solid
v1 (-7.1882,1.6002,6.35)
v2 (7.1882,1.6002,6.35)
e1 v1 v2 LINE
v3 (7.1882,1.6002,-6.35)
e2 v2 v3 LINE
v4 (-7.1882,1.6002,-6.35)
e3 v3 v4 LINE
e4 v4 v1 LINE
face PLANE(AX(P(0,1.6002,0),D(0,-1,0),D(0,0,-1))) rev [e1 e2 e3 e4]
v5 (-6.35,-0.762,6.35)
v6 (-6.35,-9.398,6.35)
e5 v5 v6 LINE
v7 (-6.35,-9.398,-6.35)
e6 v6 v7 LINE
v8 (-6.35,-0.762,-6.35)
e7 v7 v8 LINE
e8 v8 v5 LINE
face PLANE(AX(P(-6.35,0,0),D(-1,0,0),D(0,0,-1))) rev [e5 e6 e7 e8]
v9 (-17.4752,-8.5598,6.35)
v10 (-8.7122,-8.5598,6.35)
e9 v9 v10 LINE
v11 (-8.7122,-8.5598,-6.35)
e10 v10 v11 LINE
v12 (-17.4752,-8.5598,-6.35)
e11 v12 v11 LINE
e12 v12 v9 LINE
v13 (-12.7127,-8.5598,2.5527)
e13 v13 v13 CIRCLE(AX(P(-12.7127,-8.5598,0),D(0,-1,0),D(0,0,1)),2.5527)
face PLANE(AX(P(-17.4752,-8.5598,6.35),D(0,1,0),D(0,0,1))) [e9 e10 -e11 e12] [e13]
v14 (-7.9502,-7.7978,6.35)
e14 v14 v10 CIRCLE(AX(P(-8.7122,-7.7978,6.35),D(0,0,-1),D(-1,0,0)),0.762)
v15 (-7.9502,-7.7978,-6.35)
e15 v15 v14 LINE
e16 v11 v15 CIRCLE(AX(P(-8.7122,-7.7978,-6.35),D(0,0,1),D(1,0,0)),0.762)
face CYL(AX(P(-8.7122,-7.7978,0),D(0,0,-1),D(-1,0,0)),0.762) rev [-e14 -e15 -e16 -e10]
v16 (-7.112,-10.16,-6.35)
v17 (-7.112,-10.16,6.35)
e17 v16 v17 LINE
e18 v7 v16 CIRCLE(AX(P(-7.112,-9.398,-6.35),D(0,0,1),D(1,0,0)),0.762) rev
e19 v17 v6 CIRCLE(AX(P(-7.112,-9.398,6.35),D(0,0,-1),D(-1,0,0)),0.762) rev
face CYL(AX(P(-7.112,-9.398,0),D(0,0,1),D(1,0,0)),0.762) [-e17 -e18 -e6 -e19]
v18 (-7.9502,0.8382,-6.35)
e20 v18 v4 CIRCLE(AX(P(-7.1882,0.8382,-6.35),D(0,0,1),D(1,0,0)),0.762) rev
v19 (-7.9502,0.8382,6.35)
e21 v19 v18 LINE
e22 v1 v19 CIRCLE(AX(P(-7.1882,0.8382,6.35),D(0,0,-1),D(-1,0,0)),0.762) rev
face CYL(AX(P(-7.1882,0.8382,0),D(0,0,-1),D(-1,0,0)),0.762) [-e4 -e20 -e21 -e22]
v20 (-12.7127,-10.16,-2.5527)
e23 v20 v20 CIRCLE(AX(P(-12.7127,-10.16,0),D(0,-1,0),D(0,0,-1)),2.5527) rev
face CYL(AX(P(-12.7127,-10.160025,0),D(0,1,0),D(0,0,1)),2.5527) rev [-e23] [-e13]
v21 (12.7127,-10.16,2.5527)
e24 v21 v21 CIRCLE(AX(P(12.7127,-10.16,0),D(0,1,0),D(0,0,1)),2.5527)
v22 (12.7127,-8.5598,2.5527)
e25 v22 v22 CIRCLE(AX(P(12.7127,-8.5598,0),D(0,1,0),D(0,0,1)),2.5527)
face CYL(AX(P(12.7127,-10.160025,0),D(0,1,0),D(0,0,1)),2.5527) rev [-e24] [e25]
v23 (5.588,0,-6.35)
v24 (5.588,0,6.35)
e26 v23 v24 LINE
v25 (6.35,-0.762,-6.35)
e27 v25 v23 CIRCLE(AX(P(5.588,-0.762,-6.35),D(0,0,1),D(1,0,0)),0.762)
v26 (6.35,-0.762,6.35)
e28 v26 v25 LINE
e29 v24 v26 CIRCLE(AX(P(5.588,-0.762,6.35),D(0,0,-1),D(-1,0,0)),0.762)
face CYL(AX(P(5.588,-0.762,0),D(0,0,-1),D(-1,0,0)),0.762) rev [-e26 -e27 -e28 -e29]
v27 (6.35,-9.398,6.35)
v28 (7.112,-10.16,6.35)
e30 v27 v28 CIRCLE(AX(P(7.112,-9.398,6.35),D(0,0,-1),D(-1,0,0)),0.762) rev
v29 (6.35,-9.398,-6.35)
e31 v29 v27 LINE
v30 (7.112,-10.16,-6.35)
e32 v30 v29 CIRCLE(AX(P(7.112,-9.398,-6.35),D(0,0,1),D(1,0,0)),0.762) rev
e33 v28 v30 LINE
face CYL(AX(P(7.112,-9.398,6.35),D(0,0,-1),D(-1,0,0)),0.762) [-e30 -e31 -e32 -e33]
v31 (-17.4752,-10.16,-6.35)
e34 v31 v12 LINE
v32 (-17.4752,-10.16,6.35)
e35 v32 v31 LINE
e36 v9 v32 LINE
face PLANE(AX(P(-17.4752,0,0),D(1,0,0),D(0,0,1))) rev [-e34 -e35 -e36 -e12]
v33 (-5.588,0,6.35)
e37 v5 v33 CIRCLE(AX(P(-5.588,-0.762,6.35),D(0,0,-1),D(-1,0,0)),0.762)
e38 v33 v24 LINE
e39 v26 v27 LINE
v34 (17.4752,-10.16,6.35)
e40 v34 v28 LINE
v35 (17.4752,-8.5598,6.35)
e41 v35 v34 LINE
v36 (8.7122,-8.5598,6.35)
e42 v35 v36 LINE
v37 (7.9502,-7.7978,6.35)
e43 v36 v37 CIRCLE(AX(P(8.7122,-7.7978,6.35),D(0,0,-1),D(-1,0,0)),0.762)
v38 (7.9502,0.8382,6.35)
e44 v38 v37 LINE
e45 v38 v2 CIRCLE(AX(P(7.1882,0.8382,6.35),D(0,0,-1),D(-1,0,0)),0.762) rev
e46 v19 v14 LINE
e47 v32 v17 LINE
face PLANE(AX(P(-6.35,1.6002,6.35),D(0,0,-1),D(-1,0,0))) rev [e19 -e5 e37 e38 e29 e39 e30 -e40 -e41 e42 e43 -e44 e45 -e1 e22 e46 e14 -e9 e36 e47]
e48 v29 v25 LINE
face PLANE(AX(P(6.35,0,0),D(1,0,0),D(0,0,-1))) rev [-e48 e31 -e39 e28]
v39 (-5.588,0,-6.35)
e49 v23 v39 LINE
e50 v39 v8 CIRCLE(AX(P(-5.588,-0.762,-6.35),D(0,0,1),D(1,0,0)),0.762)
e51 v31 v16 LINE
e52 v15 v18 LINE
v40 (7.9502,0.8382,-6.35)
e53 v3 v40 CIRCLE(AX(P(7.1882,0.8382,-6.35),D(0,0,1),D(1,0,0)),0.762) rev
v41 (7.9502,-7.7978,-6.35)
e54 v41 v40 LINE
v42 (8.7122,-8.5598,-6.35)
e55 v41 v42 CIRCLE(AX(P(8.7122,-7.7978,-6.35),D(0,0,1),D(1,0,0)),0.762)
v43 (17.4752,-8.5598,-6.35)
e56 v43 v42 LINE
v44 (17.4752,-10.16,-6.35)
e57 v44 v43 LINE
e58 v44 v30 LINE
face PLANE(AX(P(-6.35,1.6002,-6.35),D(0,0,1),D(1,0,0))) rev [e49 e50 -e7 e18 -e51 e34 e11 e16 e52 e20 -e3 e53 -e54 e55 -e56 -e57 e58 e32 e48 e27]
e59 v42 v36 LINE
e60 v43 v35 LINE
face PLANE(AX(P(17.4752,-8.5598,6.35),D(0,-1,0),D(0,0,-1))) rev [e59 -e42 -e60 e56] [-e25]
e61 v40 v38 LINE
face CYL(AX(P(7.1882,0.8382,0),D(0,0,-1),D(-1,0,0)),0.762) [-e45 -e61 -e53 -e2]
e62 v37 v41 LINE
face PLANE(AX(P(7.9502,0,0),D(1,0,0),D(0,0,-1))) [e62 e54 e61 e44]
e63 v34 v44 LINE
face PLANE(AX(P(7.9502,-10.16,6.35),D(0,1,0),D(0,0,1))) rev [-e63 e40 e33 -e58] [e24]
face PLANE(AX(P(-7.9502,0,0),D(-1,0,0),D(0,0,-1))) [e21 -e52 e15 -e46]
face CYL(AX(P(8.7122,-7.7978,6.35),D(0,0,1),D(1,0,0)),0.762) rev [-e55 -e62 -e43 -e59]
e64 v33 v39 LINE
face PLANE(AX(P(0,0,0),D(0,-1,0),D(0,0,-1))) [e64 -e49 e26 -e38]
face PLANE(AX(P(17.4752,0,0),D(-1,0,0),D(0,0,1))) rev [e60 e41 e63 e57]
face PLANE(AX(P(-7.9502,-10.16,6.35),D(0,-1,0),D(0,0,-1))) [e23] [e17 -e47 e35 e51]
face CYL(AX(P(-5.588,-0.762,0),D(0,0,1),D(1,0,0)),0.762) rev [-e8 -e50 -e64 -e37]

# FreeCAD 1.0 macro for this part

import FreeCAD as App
import Part
import Sketcher

V = App.Vector
Q = App.Units.Quantity


def edges_at(feature, points):
    """Names of the edges that pass closest to the given points."""
    edges = feature.Shape.Edges
    near = lambda p: min(range(len(edges)), key=lambda i: edges[i].distToShape(Part.Vertex(*p))[0])
    return sorted({f"Edge{near(p) + 1}" for p in points})

doc = App.newDocument("Part")
body = doc.addObject("PartDesign::Body", "Body")

sketch1 = body.newObject("Sketcher::SketchObject", "Sketch")
sketch1.AttachmentSupport = (doc.getObject("XZ_Plane"), [""])
sketch1.MapMode = "FlatFace"
sketch1.addGeometry([
    Part.LineSegment(V(-6, -6, 0), V(-6, 6, 0)),
    Part.LineSegment(V(-6, 6, 0), V(6, 6, 0)),
    Part.LineSegment(V(6, 6, 0), V(6, -6, 0)),
    Part.LineSegment(V(6, -6, 0), V(-6, -6, 0)),
], False)
sketch1.addConstraint([
    Sketcher.Constraint("Coincident", 0, 2, 1, 1),
    Sketcher.Constraint("Coincident", 1, 2, 2, 1),
    Sketcher.Constraint("Coincident", 2, 2, 3, 1),
    Sketcher.Constraint("Coincident", 3, 2, 0, 1),
    Sketcher.Constraint("Vertical", 0),
    Sketcher.Constraint("Horizontal", 1),
    Sketcher.Constraint("Vertical", 2),
    Sketcher.Constraint("Horizontal", 3),
    Sketcher.Constraint("Symmetric", 0, 2, 2, 2, -1, 1),
    Sketcher.Constraint("Equal", 3, 0),
    Sketcher.Constraint("DistanceX", 1, 1, 1, 2, Q("0.5 in")),
])
pad1 = body.newObject("PartDesign::Pad", "Pad")
pad1.Profile = sketch1
pad1.Length = Q("0.063 in")
pad1.Reversed = True

sketch2 = body.newObject("Sketcher::SketchObject", "Sketch001")
sketch2.AttachmentSupport = (doc.getObject("YZ_Plane"), [""])
sketch2.MapMode = "FlatFace"
sketch2.AttachmentOffset = App.Placement(V(0, 0, 0.25 * 25.4), App.Rotation())
sketch2.addGeometry([
    Part.LineSegment(V(2, 6, 0), V(-10, 6, 0)),
    Part.LineSegment(V(-10, 6, 0), V(-10, -6, 0)),
    Part.LineSegment(V(-10, -6, 0), V(2, -6, 0)),
    Part.LineSegment(V(2, -6, 0), V(2, 6, 0)),
], False)
sketch2.addConstraint([
    Sketcher.Constraint("Coincident", 0, 2, 1, 1),
    Sketcher.Constraint("Coincident", 1, 2, 2, 1),
    Sketcher.Constraint("Coincident", 2, 2, 3, 1),
    Sketcher.Constraint("Coincident", 3, 2, 0, 1),
    Sketcher.Constraint("Horizontal", 0),
    Sketcher.Constraint("Vertical", 1),
    Sketcher.Constraint("Horizontal", 2),
    Sketcher.Constraint("Vertical", 3),
    Sketcher.Constraint("DistanceY", 1, 2, 1, 1, Q("0.5 in")),
    Sketcher.Constraint("DistanceX", 0, 2, -1, 1, Q("0.4 in")),
    Sketcher.Constraint("DistanceX", 0, 2, 0, 1, Q("0.463 in")),
    Sketcher.Constraint("DistanceY", -1, 1, 0, 2, Q("0.25 in")),
])
pad2 = body.newObject("PartDesign::Pad", "Pad001")
pad2.Profile = sketch2
pad2.Length = Q("0.063 in")

sketch3 = body.newObject("Sketcher::SketchObject", "Sketch002")
sketch3.AttachmentSupport = (doc.getObject("YZ_Plane"), [""])
sketch3.MapMode = "FlatFace"
sketch3.AttachmentOffset = App.Placement(V(0, 0, 0.313 * 25.4), App.Rotation())
sketch3.addGeometry([
    Part.LineSegment(V(-8.6, 6.3, 0), V(-10.2, 6.3, 0)),
    Part.LineSegment(V(-10.2, 6.3, 0), V(-10.2, -6.3, 0)),
    Part.LineSegment(V(-10.2, -6.3, 0), V(-8.6, -6.3, 0)),
    Part.LineSegment(V(-8.6, -6.3, 0), V(-8.6, 6.3, 0)),
], False)
sketch3.addConstraint([
    Sketcher.Constraint("Coincident", 0, 2, 1, 1),
    Sketcher.Constraint("Coincident", 1, 2, 2, 1),
    Sketcher.Constraint("Coincident", 2, 2, 3, 1),
    Sketcher.Constraint("Coincident", 3, 2, 0, 1),
    Sketcher.Constraint("Horizontal", 0),
    Sketcher.Constraint("Vertical", 1),
    Sketcher.Constraint("Horizontal", 2),
    Sketcher.Constraint("Vertical", 3),
    Sketcher.Constraint("DistanceY", 1, 2, 1, 1, Q("0.5 in")),
    Sketcher.Constraint("DistanceX", 0, 2, -1, 1, Q("0.4 in")),
    Sketcher.Constraint("DistanceX", 0, 2, 0, 1, Q("0.063 in")),
    Sketcher.Constraint("DistanceY", -1, 1, 0, 2, Q("0.25 in")),
])
pad3 = body.newObject("PartDesign::Pad", "Pad002")
pad3.Profile = sketch3
pad3.Length = Q("0.375 in")

sketch4 = body.newObject("Sketcher::SketchObject", "Sketch003")
sketch4.AttachmentSupport = (doc.getObject("XZ_Plane"), [""])
sketch4.MapMode = "FlatFace"
sketch4.AttachmentOffset = App.Placement(V(0, 0, 0.337 * 25.4), App.Rotation())
sketch4.addGeometry(Part.Circle(V(12.7, 0, 0), V(0, 0, 1), 2.6), False)
sketch4.addConstraint([
    Sketcher.Constraint("PointOnObject", 0, 3, -1),
    Sketcher.Constraint("Diameter", 0, Q("0.201 in")),
    Sketcher.Constraint("DistanceX", -1, 1, 0, 3, Q("0.5005 in")),
])
pocket1 = body.newObject("PartDesign::Pocket", "Pocket")
pocket1.Profile = sketch4
pocket1.Type = "ThroughAll"
pocket1.Reversed = True
doc.recompute()

mirrored = body.newObject("PartDesign::Mirrored", "Mirrored")
mirrored.Originals = [pad2, pad3, pocket1]
mirrored.MirrorPlane = (doc.getObject("YZ_Plane"), [""])
body.Tip = mirrored
doc.recompute()

fillet = body.newObject("PartDesign::Fillet", "Fillet")
fillet.Base = (mirrored, edges_at(mirrored, [
    (6.35, -10.16, 0),
    (-6.35, -10.16, 0),
    (6.35, 0, 0),
    (-6.35, 0, 0),
    (-7.95, -8.56, 0),
    (-7.95, 1.6, 0),
    (7.95, 1.6, 0),
    (7.95, -8.56, 0),
]))
fillet.Radius = Q("0.03 in")

doc.recompute()
